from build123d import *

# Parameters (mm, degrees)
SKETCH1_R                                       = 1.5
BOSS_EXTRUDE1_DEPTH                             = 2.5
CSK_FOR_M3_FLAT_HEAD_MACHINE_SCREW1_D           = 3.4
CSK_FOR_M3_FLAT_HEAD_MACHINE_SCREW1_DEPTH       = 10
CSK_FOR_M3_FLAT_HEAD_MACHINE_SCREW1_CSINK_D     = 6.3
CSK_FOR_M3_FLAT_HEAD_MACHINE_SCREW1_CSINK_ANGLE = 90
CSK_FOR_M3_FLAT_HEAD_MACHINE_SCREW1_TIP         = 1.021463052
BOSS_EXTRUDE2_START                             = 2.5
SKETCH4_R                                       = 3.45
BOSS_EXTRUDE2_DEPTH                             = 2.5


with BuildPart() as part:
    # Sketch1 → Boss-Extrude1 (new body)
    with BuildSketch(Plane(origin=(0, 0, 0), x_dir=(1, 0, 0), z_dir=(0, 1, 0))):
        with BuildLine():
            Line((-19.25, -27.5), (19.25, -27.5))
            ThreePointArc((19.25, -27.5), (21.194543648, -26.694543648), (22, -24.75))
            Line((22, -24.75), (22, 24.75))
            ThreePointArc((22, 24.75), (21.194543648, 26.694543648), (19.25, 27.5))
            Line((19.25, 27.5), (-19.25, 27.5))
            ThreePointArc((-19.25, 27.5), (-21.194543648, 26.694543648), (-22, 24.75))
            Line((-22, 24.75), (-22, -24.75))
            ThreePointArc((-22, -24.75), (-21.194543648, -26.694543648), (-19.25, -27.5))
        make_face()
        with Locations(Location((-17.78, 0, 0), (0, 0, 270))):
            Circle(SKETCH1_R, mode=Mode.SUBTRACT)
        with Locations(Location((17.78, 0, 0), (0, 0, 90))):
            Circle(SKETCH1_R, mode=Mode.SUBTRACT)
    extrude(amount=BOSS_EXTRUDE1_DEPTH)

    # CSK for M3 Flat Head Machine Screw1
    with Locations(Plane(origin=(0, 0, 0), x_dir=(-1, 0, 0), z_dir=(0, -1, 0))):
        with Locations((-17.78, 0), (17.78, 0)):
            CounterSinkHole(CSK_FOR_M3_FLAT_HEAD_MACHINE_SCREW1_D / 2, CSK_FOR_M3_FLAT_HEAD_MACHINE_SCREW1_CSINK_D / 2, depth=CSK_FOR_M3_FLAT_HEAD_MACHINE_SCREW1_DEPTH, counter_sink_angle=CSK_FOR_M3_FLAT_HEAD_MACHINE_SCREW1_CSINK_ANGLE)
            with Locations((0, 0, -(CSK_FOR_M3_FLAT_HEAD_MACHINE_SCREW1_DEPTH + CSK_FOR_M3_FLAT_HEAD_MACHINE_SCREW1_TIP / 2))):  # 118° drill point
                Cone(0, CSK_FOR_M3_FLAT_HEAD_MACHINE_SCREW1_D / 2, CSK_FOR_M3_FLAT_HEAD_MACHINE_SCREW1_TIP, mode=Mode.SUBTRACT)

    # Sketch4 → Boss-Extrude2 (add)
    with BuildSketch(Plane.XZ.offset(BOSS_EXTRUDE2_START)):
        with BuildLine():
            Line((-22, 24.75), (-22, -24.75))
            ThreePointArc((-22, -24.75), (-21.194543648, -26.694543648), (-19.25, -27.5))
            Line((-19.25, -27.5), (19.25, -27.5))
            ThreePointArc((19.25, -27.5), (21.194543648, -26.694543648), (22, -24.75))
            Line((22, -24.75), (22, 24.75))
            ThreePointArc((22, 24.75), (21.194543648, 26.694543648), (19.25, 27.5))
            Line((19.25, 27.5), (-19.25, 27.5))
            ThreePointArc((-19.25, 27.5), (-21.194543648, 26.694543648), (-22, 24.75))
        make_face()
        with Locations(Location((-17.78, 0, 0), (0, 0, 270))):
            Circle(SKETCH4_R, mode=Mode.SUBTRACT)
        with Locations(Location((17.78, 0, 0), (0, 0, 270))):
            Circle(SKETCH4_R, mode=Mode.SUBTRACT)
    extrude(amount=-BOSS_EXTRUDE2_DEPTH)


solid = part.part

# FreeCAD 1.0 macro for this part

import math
import FreeCAD as App
import Part
import Sketcher

doc = App.newDocument("Part")
body = doc.addObject("PartDesign::Body", "Body")

sketch1 = doc.addObject("Sketcher::SketchObject", "Sketch")
body.addObject(sketch1)
sketch1.AttachmentSupport = (doc.XZ_Plane, [""])
sketch1.MapMode = "FlatFace"
sketch1.addGeometry([
    Part.LineSegment(App.Vector(-19.25, 27.5, 0), App.Vector(19.25, 27.5, 0)),
    Part.ArcOfCircle(Part.Circle(App.Vector(19.25, 24.75, 0), App.Vector(0, 0, 1), 2.75), math.radians(0), math.radians(90)),
    Part.LineSegment(App.Vector(22, 24.75, 0), App.Vector(22, -24.75, 0)),
    Part.ArcOfCircle(Part.Circle(App.Vector(19.25, -24.75, 0), App.Vector(0, 0, 1), 2.75), math.radians(-90), math.radians(0)),
    Part.LineSegment(App.Vector(19.25, -27.5, 0), App.Vector(-19.25, -27.5, 0)),
    Part.ArcOfCircle(Part.Circle(App.Vector(-19.25, -24.75, 0), App.Vector(0, 0, 1), 2.75), math.radians(-180), math.radians(-90)),
    Part.LineSegment(App.Vector(-22, -24.75, 0), App.Vector(-22, 24.75, 0)),
    Part.ArcOfCircle(Part.Circle(App.Vector(-19.25, 24.75, 0), App.Vector(0, 0, 1), 2.75), math.radians(90), math.radians(180)),
    Part.Circle(App.Vector(-17.78, 0, 0), App.Vector(0, 0, 1), 1.5),
    Part.Circle(App.Vector(17.78, 0, 0), App.Vector(0, 0, 1), 1.5),
], False)
sketch1.addConstraint([
    Sketcher.Constraint("Tangent", 0, 2, 1, 2),
    Sketcher.Constraint("Tangent", 1, 1, 2, 1),
    Sketcher.Constraint("Tangent", 2, 2, 3, 2),
    Sketcher.Constraint("Tangent", 3, 1, 4, 1),
    Sketcher.Constraint("Tangent", 4, 2, 5, 2),
    Sketcher.Constraint("Tangent", 5, 1, 6, 1),
    Sketcher.Constraint("Tangent", 6, 2, 7, 2),
    Sketcher.Constraint("Tangent", 7, 1, 0, 1),
    Sketcher.Constraint("Horizontal", 0),
    Sketcher.Constraint("Vertical", 2),
    Sketcher.Constraint("Horizontal", 4),
    Sketcher.Constraint("Vertical", 6),
    Sketcher.Constraint("Equal", 1, 3),
    Sketcher.Constraint("Equal", 3, 5),
    Sketcher.Constraint("Equal", 5, 7),
    Sketcher.Constraint("Equal", 8, 9),
    Sketcher.Constraint("Symmetric", 1, 3, 5, 3, -1, 1),
    Sketcher.Constraint("Symmetric", 8, 3, 9, 3, -1, 1),
    Sketcher.Constraint("PointOnObject", 8, 3, -1),
    Sketcher.Constraint("Diameter", 8, 3.0),
    Sketcher.Constraint("Radius", 1, 2.75),
    Sketcher.Constraint("DistanceX", 0, 1, 0, 2, 38.5),
    Sketcher.Constraint("DistanceY", 2, 2, 2, 1, 49.5),
    Sketcher.Constraint("DistanceX", 8, 3, -1, 1, 17.78),
])
pad1 = doc.addObject("PartDesign::Pad", "Pad")
body.addObject(pad1)
pad1.Profile = sketch1
pad1.Length = 2.5
pad1.Reversed = True

sketch2 = doc.addObject("Sketcher::SketchObject", "Sketch001")
body.addObject(sketch2)
sketch2.AttachmentSupport = (doc.XZ_Plane, [""])
sketch2.MapMode = "FlatFace"
sketch2.addGeometry([
    Part.Circle(App.Vector(17.78, 0, 0), App.Vector(0, 0, 1), 1.7),
    Part.Circle(App.Vector(-17.78, 0, 0), App.Vector(0, 0, 1), 1.7),
], False)
sketch2.addConstraint([
    Sketcher.Constraint("Equal", 0, 1),
    Sketcher.Constraint("Symmetric", 0, 3, 1, 3, -1, 1),
    Sketcher.Constraint("PointOnObject", 0, 3, -1),
    Sketcher.Constraint("Diameter", 0, 3.4),
    Sketcher.Constraint("DistanceX", -1, 1, 0, 3, 17.78),
])
doc.recompute()
hole = doc.addObject("PartDesign::Hole", "Hole")
body.addObject(hole)
hole.Profile = sketch2
hole.ThreadType = "None"
hole.Diameter = 3.4
hole.DepthType = "Dimension"
hole.Depth = 10
hole.DrillPoint = "Angled"
hole.DrillPointAngle = 118
hole.HoleCutType = "Countersink"
hole.HoleCutDiameter = 6.3
hole.HoleCutCountersinkAngle = 90

sketch3 = doc.addObject("Sketcher::SketchObject", "Sketch002")
body.addObject(sketch3)
sketch3.AttachmentSupport = (doc.XZ_Plane, [""])
sketch3.MapMode = "FlatFace"
sketch3.AttachmentOffset = App.Placement(App.Vector(0, 0, 2.5), App.Rotation())
sketch3.addGeometry([
    Part.LineSegment(App.Vector(-22, 24.75, 0), App.Vector(-22, -24.75, 0)),
    Part.ArcOfCircle(Part.Circle(App.Vector(-19.25, -24.75, 0), App.Vector(0, 0, 1), 2.75), math.radians(-180), math.radians(-90)),
    Part.LineSegment(App.Vector(-19.25, -27.5, 0), App.Vector(19.25, -27.5, 0)),
    Part.ArcOfCircle(Part.Circle(App.Vector(19.25, -24.75, 0), App.Vector(0, 0, 1), 2.75), math.radians(-90), math.radians(0)),
    Part.LineSegment(App.Vector(22, -24.75, 0), App.Vector(22, 24.75, 0)),
    Part.ArcOfCircle(Part.Circle(App.Vector(19.25, 24.75, 0), App.Vector(0, 0, 1), 2.75), math.radians(0), math.radians(90)),
    Part.LineSegment(App.Vector(19.25, 27.5, 0), App.Vector(-19.25, 27.5, 0)),
    Part.ArcOfCircle(Part.Circle(App.Vector(-19.25, 24.75, 0), App.Vector(0, 0, 1), 2.75), math.radians(90), math.radians(180)),
    Part.Circle(App.Vector(-17.78, 0, 0), App.Vector(0, 0, 1), 3.45),
    Part.Circle(App.Vector(17.78, 0, 0), App.Vector(0, 0, 1), 3.45),
], False)
sketch3.addConstraint([
    Sketcher.Constraint("Tangent", 0, 2, 1, 1),
    Sketcher.Constraint("Tangent", 1, 2, 2, 1),
    Sketcher.Constraint("Tangent", 2, 2, 3, 1),
    Sketcher.Constraint("Tangent", 3, 2, 4, 1),
    Sketcher.Constraint("Tangent", 4, 2, 5, 1),
    Sketcher.Constraint("Tangent", 5, 2, 6, 1),
    Sketcher.Constraint("Tangent", 6, 2, 7, 1),
    Sketcher.Constraint("Tangent", 7, 2, 0, 1),
    Sketcher.Constraint("Vertical", 0),
    Sketcher.Constraint("Horizontal", 2),
    Sketcher.Constraint("Vertical", 4),
    Sketcher.Constraint("Horizontal", 6),
    Sketcher.Constraint("Equal", 1, 3),
    Sketcher.Constraint("Equal", 3, 5),
    Sketcher.Constraint("Equal", 5, 7),
    Sketcher.Constraint("Equal", 8, 9),
    Sketcher.Constraint("Symmetric", 1, 3, 5, 3, -1, 1),
    Sketcher.Constraint("Symmetric", 8, 3, 9, 3, -1, 1),
    Sketcher.Constraint("PointOnObject", 8, 3, -1),
    Sketcher.Constraint("Diameter", 8, 6.9),
    Sketcher.Constraint("Radius", 1, 2.75),
    Sketcher.Constraint("DistanceX", 2, 1, 2, 2, 38.5),
    Sketcher.Constraint("DistanceY", 0, 2, 0, 1, 49.5),
    Sketcher.Constraint("DistanceX", 8, 3, -1, 1, 17.78),
])
pad2 = doc.addObject("PartDesign::Pad", "Pad001")
body.addObject(pad2)
pad2.Profile = sketch3
pad2.Length = 2.5
pad2.Reversed = True

doc.recompute()
